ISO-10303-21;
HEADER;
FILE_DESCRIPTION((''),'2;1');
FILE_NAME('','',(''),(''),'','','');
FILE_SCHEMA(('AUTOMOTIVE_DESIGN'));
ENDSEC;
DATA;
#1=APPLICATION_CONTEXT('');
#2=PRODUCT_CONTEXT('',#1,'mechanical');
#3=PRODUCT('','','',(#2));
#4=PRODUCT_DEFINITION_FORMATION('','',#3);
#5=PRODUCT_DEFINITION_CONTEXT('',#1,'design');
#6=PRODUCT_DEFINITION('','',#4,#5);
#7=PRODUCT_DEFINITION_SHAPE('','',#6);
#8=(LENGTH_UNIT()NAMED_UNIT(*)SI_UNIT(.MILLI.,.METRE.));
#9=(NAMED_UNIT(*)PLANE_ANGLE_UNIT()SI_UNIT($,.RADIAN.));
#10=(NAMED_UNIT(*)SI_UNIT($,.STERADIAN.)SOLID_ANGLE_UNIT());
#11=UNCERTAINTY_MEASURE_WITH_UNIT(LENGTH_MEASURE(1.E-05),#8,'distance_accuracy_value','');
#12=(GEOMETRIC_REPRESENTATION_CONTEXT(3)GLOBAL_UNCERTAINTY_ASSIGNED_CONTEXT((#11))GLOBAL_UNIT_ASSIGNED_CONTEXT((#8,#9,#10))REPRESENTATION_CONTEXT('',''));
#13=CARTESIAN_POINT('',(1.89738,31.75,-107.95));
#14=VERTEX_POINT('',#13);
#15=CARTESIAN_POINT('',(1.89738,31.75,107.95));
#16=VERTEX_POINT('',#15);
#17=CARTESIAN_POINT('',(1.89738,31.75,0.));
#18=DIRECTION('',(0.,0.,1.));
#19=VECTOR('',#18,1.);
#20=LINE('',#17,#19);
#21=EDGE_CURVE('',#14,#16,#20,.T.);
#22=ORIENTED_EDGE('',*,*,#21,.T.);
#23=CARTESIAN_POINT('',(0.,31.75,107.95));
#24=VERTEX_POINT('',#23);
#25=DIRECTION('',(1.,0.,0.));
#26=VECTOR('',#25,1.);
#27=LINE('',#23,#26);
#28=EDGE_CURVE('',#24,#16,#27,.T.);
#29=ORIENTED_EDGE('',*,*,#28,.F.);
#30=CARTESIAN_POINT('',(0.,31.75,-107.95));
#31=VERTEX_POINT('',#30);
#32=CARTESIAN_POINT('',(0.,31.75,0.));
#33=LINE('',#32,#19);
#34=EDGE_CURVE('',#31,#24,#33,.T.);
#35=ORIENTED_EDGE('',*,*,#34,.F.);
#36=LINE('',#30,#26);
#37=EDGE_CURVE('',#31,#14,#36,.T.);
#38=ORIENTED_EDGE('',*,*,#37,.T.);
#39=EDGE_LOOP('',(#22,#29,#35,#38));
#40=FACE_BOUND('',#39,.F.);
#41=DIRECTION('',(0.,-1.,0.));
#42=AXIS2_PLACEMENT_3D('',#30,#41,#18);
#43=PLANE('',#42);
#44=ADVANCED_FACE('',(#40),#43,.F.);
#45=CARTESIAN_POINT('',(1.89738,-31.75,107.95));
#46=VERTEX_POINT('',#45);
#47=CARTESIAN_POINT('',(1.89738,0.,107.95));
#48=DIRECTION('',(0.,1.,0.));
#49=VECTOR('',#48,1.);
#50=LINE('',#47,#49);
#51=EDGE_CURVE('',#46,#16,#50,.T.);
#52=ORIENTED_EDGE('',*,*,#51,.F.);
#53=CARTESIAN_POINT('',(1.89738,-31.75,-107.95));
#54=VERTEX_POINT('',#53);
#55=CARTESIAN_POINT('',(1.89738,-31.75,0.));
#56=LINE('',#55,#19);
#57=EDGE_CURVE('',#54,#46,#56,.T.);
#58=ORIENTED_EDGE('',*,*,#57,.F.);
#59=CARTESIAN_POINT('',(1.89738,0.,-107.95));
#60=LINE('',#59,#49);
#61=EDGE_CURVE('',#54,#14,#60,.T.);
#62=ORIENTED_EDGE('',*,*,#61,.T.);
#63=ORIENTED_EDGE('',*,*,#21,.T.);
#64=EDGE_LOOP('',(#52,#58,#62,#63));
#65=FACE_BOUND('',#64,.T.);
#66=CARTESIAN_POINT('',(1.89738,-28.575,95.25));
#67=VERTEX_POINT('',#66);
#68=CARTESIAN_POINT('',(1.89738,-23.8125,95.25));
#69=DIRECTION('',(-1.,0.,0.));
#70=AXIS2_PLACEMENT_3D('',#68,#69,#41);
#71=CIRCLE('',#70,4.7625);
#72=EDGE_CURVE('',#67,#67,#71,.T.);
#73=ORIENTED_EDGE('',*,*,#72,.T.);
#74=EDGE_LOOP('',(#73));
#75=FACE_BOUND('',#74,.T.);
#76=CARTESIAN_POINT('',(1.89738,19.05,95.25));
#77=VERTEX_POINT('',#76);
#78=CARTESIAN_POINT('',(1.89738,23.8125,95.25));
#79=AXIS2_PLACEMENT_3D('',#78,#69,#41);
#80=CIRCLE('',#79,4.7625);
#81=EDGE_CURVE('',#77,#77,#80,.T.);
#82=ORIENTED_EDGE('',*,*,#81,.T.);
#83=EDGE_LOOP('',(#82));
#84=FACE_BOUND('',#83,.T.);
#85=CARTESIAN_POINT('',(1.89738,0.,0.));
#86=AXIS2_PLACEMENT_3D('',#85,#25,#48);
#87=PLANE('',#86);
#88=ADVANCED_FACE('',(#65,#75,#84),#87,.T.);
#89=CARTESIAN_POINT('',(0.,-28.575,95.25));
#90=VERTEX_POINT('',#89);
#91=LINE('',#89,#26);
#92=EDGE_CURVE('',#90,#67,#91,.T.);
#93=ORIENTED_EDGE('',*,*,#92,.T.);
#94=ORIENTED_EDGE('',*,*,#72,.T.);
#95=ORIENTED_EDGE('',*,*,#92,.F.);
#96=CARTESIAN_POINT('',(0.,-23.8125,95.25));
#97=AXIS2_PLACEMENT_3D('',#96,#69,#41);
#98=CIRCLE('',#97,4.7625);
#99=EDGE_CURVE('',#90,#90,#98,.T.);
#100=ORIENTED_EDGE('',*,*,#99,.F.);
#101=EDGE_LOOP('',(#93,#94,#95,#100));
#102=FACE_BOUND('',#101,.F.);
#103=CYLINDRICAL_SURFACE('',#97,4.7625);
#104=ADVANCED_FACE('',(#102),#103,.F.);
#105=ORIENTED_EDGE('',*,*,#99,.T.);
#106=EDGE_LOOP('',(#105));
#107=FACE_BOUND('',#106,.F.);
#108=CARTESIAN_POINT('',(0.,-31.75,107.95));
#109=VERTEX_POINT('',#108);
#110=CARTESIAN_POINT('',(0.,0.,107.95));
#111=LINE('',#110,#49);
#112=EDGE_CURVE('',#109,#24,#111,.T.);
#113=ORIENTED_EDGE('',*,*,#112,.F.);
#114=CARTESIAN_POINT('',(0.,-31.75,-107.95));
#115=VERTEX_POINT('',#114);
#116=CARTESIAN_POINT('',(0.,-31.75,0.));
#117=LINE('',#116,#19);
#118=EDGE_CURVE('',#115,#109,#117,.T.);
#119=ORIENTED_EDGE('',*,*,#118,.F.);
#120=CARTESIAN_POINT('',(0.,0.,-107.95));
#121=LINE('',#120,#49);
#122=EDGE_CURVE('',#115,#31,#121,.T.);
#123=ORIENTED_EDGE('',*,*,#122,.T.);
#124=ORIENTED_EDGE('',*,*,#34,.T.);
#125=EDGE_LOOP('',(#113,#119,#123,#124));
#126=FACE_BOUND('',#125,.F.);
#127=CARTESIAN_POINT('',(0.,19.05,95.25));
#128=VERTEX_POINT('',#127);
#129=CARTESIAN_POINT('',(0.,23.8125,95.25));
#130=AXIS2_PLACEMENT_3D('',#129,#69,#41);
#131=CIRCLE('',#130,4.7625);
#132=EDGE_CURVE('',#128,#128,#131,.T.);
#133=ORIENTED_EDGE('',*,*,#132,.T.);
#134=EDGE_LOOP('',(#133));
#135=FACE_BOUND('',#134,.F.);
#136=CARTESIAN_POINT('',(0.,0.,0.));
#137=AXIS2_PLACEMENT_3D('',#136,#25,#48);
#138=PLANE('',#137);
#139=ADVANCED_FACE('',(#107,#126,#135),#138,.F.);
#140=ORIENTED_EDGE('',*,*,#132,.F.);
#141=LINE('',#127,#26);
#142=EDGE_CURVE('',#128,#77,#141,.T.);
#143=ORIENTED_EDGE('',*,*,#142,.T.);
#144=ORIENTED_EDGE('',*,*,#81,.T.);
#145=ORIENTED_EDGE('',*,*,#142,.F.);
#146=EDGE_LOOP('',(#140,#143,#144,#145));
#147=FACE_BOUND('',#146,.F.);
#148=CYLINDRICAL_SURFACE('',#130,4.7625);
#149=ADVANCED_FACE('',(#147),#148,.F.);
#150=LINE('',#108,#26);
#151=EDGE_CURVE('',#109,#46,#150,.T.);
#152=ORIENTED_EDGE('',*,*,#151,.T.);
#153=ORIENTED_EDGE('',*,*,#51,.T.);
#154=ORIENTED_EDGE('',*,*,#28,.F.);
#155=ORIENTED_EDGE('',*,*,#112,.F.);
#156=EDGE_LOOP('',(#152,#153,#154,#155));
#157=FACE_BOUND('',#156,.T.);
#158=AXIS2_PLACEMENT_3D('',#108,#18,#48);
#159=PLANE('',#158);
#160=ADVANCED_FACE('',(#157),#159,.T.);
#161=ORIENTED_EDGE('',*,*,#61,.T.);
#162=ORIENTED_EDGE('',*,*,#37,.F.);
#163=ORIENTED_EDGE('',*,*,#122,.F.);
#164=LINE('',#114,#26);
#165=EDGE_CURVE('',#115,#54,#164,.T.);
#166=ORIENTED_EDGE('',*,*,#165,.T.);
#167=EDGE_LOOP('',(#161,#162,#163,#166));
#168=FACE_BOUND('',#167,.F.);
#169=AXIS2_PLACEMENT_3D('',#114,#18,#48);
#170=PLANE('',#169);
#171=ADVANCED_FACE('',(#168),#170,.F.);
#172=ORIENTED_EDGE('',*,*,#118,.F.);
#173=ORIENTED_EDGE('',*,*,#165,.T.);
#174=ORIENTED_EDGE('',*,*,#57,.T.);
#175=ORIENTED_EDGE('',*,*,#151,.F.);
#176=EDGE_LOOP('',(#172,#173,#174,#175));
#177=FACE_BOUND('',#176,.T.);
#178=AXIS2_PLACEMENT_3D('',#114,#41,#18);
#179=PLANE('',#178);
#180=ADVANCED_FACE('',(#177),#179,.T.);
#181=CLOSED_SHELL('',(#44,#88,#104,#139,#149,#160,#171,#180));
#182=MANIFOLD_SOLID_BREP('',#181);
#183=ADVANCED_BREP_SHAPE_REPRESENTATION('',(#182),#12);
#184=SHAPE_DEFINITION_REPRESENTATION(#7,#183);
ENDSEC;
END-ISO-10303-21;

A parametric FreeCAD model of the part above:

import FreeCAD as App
import Part
import Sketcher
Q = App.Units.Quantity


def add_polygon(sketch, points):
    """Adds a closed chain of lines whose ends are joined by coincident constraints."""
    first, n = sketch.GeometryCount, len(points)
    for a, b in zip(points, points[1:] + points[:1]):
        sketch.addGeometry(Part.LineSegment(App.Vector(*a, 0), App.Vector(*b, 0)), False)
    for i in range(n):
        sketch.addConstraint(Sketcher.Constraint("Coincident", first + i, 2, first + (i + 1) % n, 1))

doc = App.newDocument("Part")
body = doc.addObject("PartDesign::Body", "Body")

# Sketch on YZ plane
sketch1 = body.newObject("Sketcher::SketchObject", "Sketch")
sketch1.AttachmentSupport = (doc.getObject("YZ_Plane"), [""])
sketch1.MapMode = "FlatFace"
add_polygon(sketch1, [(-31.75, 107.95), (-31.75, -107.95), (31.75, -107.95), (31.75, 107.95)])  # lines 0-3
sketch1.addConstraint([
    Sketcher.Constraint("Vertical", 0),
    Sketcher.Constraint("Horizontal", 1),
    Sketcher.Constraint("Vertical", 2),
    Sketcher.Constraint("Horizontal", 3),
    Sketcher.Constraint("Symmetric", 0, 2, 2, 2, -1, 1),
    Sketcher.Constraint("DistanceX", 1, 1, 1, 2, Q("2.5 in")),
    Sketcher.Constraint("DistanceY", 0, 2, 0, 1, Q("8.5 in")),
])
pad1 = body.newObject("PartDesign::Pad", "Pad")
pad1.Profile = sketch1
pad1.Length = Q("0.0747 in")

# Sketch on YZ plane
sketch2 = body.newObject("Sketcher::SketchObject", "Sketch001")
sketch2.AttachmentSupport = (doc.getObject("YZ_Plane"), [""])
sketch2.MapMode = "FlatFace"
sketch2.addGeometry([
    Part.Circle(App.Vector(23.8125, 95.25, 0), App.Vector(0, 0, 1), 4.7625),
    Part.Circle(App.Vector(-23.8125, 95.25, 0), App.Vector(0, 0, 1), 4.7625),
], False)
sketch2.addConstraint([
    Sketcher.Constraint("Equal", 0, 1),
    Sketcher.Constraint("Symmetric", 0, 3, 1, 3, -2),
    Sketcher.Constraint("Diameter", 0, Q("0.375 in")),
    Sketcher.Constraint("DistanceY", -1, 1, 0, 3, Q("3.75 in")),
    Sketcher.Constraint("DistanceX", -1, 1, 0, 3, Q("0.9375 in")),
])
pocket1 = body.newObject("PartDesign::Pocket", "Pocket")
pocket1.Profile = sketch2
pocket1.Length = Q("1 in")
pocket1.Reversed = True

doc.recompute()
